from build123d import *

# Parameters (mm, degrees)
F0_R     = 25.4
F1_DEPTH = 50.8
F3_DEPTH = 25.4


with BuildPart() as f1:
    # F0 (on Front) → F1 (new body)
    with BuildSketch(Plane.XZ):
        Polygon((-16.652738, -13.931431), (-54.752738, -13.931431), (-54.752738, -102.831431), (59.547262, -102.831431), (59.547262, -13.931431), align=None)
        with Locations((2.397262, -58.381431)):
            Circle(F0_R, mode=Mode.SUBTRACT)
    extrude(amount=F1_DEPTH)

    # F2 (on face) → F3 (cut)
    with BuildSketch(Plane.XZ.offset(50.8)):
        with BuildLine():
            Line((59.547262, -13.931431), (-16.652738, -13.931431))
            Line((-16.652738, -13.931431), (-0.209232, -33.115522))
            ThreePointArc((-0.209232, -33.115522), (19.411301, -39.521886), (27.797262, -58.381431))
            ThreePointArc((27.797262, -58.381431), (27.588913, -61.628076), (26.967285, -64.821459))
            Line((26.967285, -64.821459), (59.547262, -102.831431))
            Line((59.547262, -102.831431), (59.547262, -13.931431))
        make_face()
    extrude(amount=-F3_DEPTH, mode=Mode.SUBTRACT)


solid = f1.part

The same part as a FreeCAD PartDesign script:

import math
import FreeCAD as App
import Part
import Sketcher

V = App.Vector
Q = App.Units.Quantity

doc = App.newDocument("Part")
body = doc.addObject("PartDesign::Body", "Body")

# Sketch on XZ plane
sketch1 = body.newObject("Sketcher::SketchObject", "Sketch")
sketch1.AttachmentSupport = (doc.getObject("XZ_Plane"), [""])
sketch1.MapMode = "FlatFace"
sketch1.addGeometry(Part.LineSegment(V(-55, -14, 0), V(-55, -103, 0)), False)
sketch1.addGeometry(Part.LineSegment(V(-55, -103, 0), V(60, -103, 0)), False)
sketch1.addGeometry(Part.LineSegment(V(60, -103, 0), V(60, -14, 0)), False)
sketch1.addGeometry(Part.LineSegment(V(60, -14, 0), V(-55, -14, 0)), False)
sketch1.addGeometry(Part.Circle(V(2, -58, 0), V(0, 0, 1), 25), False)
sketch1.addConstraint(Sketcher.Constraint("Coincident", 0, 2, 1, 1))
sketch1.addConstraint(Sketcher.Constraint("Coincident", 1, 2, 2, 1))
sketch1.addConstraint(Sketcher.Constraint("Coincident", 2, 2, 3, 1))
sketch1.addConstraint(Sketcher.Constraint("Coincident", 3, 2, 0, 1))
sketch1.addConstraint(Sketcher.Constraint("Vertical", 0))
sketch1.addConstraint(Sketcher.Constraint("Horizontal", 1))
sketch1.addConstraint(Sketcher.Constraint("Vertical", 2))
sketch1.addConstraint(Sketcher.Constraint("Horizontal", 3))
sketch1.addConstraint(Sketcher.Constraint("Diameter", 4, Q("2 in")))
sketch1.addConstraint(Sketcher.Constraint("DistanceX", 1, 1, 1, 2, Q("4.5 in")))
sketch1.addConstraint(Sketcher.Constraint("DistanceY", 0, 2, 0, 1, Q("3.5 in")))
sketch1.addConstraint(Sketcher.Constraint("DistanceX", 0, 2, 4, 3, Q("2.25 in")))
sketch1.addConstraint(Sketcher.Constraint("DistanceY", 0, 2, 4, 3, Q("1.75 in")))
sketch1.addConstraint(Sketcher.Constraint("DistanceX", -1, 1, 4, 3, Q("2.397262 mm")))
sketch1.addConstraint(Sketcher.Constraint("DistanceY", 4, 3, -1, 1, Q("58.381431 mm")))
pad1 = body.newObject("PartDesign::Pad", "Pad")
pad1.Profile = sketch1
pad1.Length = Q("2 in")

# Sketch on XZ plane
sketch2 = body.newObject("Sketcher::SketchObject", "Sketch001")
sketch2.AttachmentSupport = (doc.getObject("XZ_Plane"), [""])
sketch2.MapMode = "FlatFace"
sketch2.AttachmentOffset = App.Placement(V(0, 0, 2 * 25.4), App.Rotation())
sketch2.addGeometry(Part.LineSegment(V(59.547262, -13.931431, 0), V(-16.652738, -13.931431, 0)), False)
sketch2.addGeometry(Part.LineSegment(V(-16.652738, -13.931431, 0), V(-0.209232, -33.115522, 0)), False)
sketch2.addGeometry(Part.ArcOfCircle(Part.Circle(V(2.397261, -58.381432, 0), V(0, 0, 1), 25.400001), math.radians(0.000003), math.radians(95.889938)), False)
sketch2.addGeometry(Part.ArcOfCircle(Part.Circle(V(2.397235, -58.381427, 0), V(0, 0, 1), 25.400027), math.radians(-14.687345), math.radians(-0.00001)), False)
sketch2.addGeometry(Part.LineSegment(V(26.967285, -64.821459, 0), V(59.547262, -102.831431, 0)), False)
sketch2.addGeometry(Part.LineSegment(V(59.547262, -102.831431, 0), V(59.547262, -13.931431, 0)), False)
sketch2.addConstraint(Sketcher.Constraint("Coincident", 0, 2, 1, 1))
sketch2.addConstraint(Sketcher.Constraint("Coincident", 1, 2, 2, 2))
sketch2.addConstraint(Sketcher.Constraint("Coincident", 2, 1, 3, 2))
sketch2.addConstraint(Sketcher.Constraint("Coincident", 3, 1, 4, 1))
sketch2.addConstraint(Sketcher.Constraint("Coincident", 4, 2, 5, 1))
sketch2.addConstraint(Sketcher.Constraint("Coincident", 5, 2, 0, 1))
sketch2.addConstraint(Sketcher.Constraint("Horizontal", 0))
sketch2.addConstraint(Sketcher.Constraint("Vertical", 5))
sketch2.addConstraint(Sketcher.Constraint("Radius", 2, Q("1 in")))
sketch2.addConstraint(Sketcher.Constraint("DistanceX", 0, 2, 0, 1, Q("3 in")))
sketch2.addConstraint(Sketcher.Constraint("DistanceY", 5, 1, 5, 2, Q("3.5 in")))
sketch2.addConstraint(Sketcher.Constraint("DistanceY", 3, 3, 0, 2, Q("1.7499998 in")))
sketch2.addConstraint(Sketcher.Constraint("DistanceX", 0, 2, 2, 3, Q("0.75 in")))
sketch2.addConstraint(Sketcher.Constraint("DistanceY", 2, 3, 0, 2, Q("1.7500001 in")))
sketch2.addConstraint(Sketcher.Constraint("DistanceY", 2, 1, 0, 2, Q("1.75 in")))
sketch2.addConstraint(Sketcher.Constraint("Radius", 3, Q("25.400027 mm")))
sketch2.addConstraint(Sketcher.Constraint("Distance", 1, Q("25.26694 mm")))
sketch2.addConstraint(Sketcher.Constraint("Distance", 4, Q("50.06209 mm")))
sketch2.addConstraint(Sketcher.Constraint("DistanceX", -1, 1, 2, 3, Q("2.397261 mm")))
sketch2.addConstraint(Sketcher.Constraint("DistanceY", 0, 2, -1, 1, Q("13.931431 mm")))
pocket1 = body.newObject("PartDesign::Pocket", "Pocket")
pocket1.Profile = sketch2
pocket1.Length = Q("1 in")

doc.recompute()
